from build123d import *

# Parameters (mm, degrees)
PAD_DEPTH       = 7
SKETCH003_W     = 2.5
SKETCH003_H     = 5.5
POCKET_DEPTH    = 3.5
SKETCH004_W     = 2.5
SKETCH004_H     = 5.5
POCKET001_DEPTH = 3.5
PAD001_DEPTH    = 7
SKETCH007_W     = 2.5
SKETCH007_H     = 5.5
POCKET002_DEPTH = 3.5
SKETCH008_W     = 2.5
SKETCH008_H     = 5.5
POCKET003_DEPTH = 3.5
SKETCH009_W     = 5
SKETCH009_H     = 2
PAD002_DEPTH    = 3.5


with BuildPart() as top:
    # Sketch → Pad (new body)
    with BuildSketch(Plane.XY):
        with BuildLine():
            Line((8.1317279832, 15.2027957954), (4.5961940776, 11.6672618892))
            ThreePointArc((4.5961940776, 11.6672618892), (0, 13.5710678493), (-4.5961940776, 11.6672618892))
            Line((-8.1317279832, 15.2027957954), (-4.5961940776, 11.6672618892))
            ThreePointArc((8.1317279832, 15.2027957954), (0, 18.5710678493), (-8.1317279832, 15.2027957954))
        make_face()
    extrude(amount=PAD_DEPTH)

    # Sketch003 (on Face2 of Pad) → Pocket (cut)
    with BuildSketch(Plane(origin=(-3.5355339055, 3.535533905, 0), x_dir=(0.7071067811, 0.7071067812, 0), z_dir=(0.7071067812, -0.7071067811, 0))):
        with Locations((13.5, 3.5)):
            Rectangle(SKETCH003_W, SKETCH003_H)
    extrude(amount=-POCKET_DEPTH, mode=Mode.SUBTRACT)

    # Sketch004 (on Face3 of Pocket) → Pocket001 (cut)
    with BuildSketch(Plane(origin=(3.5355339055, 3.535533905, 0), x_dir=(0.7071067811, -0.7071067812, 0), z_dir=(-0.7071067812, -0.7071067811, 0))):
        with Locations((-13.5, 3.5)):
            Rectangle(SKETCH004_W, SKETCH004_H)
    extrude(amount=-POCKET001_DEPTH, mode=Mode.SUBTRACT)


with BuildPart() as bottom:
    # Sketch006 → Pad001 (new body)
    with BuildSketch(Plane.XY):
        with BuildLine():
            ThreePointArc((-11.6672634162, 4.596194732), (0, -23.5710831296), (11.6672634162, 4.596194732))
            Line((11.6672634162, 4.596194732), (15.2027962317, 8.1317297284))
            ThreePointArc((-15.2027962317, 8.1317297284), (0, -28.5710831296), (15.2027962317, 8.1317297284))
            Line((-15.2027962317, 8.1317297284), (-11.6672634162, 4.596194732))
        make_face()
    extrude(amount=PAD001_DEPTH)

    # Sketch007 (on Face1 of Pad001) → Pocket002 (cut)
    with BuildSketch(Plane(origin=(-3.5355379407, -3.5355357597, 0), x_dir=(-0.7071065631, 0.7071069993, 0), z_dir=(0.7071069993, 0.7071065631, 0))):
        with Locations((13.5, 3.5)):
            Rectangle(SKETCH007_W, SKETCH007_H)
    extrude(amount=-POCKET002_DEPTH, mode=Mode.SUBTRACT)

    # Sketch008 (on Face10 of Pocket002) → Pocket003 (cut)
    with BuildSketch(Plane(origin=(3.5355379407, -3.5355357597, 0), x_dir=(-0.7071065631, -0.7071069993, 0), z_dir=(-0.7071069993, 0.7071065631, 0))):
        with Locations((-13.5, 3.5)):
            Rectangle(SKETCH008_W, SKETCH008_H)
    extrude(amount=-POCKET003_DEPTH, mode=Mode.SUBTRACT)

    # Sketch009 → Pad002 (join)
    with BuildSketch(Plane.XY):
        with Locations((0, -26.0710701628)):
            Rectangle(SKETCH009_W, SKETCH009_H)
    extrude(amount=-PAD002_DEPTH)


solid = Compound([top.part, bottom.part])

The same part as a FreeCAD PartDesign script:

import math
import FreeCAD as App
import Part
import Sketcher

V = App.Vector
Q = App.Units.Quantity


def add_polygon(sketch, points):
    """Adds a closed chain of lines whose ends are joined by coincident constraints."""
    first, n = sketch.GeometryCount, len(points)
    for a, b in zip(points, points[1:] + points[:1]):
        sketch.addGeometry(Part.LineSegment(App.Vector(*a, 0), App.Vector(*b, 0)), False)
    for i in range(n):
        sketch.addConstraint(Sketcher.Constraint("Coincident", first + i, 2, first + (i + 1) % n, 1))

doc = App.newDocument("Part")
body = doc.addObject("PartDesign::Body", "Body")

# Sketch on XY plane
sketch1 = body.newObject("Sketcher::SketchObject", "Sketch")
sketch1.AttachmentSupport = (doc.getObject("XY_Plane"), [""])
sketch1.MapMode = "FlatFace"
sketch1.addGeometry([
    Part.LineSegment(V(4.596194, 11.667262, 0), V(8.131728, 15.202796, 0)),
    Part.ArcOfCircle(Part.Circle(V(0, 7.071068, 0), V(0, 0, 1), 11.5), math.radians(45), math.radians(135)),
    Part.LineSegment(V(-8.131728, 15.202796, 0), V(-4.596194, 11.667262, 0)),
    Part.ArcOfCircle(Part.Circle(V(0, 7.071068, 0), V(0, 0, 1), 6.5), math.radians(44.999999), math.radians(135.000001)),
], False)
sketch1.addConstraint([
    Sketcher.Constraint("Coincident", 0, 2, 1, 1),
    Sketcher.Constraint("Coincident", 1, 2, 2, 1),
    Sketcher.Constraint("Coincident", 2, 2, 3, 2),
    Sketcher.Constraint("Coincident", 3, 1, 0, 1),
    Sketcher.Constraint("Coincident", 3, 3, 1, 3),
    Sketcher.Constraint("Symmetric", 0, 2, 1, 2, -2),
    Sketcher.Constraint("Perpendicular", 0, 2),
    Sketcher.Constraint("Horizontal", 2, 2, 3, 1),
    Sketcher.Constraint("Radius", 1, Q("11.5 mm")),
    Sketcher.Constraint("Radius", 3, Q("6.5 mm")),
    Sketcher.Constraint("DistanceY", -1, 1, 2, 2, Q("11.667262 mm")),
    Sketcher.Constraint("DistanceX", 2, 2, 3, 1, Q("9.192388 mm")),
])
pad1 = body.newObject("PartDesign::Pad", "Pad")
pad1.Profile = sketch1
pad1.Length = 7

# Sketch on an angled plane
sketch2 = body.newObject("Sketcher::SketchObject", "Sketch001")
sketch2.Placement = App.Placement(V(-3.535534, 3.535534, 0), App.Rotation(V(0.707106781, 0.707106781, 0), V(0, 0, 0.999999999), V(0.707106781, -0.707106781, 0), "ZXY"))
add_polygon(sketch2, [(12.25, 6.25), (12.25, 0.75), (14.75, 0.75), (14.75, 6.25)])  # lines 0-3
sketch2.addConstraint([
    Sketcher.Constraint("Vertical", 0),
    Sketcher.Constraint("Horizontal", 1),
    Sketcher.Constraint("Vertical", 2),
    Sketcher.Constraint("Horizontal", 3),
    Sketcher.Constraint("DistanceX", 1, 1, 1, 2, Q("2.5 mm")),
    Sketcher.Constraint("DistanceY", 0, 2, 0, 1, Q("5.5 mm")),
    Sketcher.Constraint("DistanceX", -1, 1, 0, 2, Q("12.25 mm")),
    Sketcher.Constraint("DistanceY", -1, 1, 0, 2, Q("0.75 mm")),
])
pocket1 = body.newObject("PartDesign::Pocket", "Pocket")
pocket1.Profile = sketch2
pocket1.Length = 3.5

# Sketch on an angled plane
sketch3 = body.newObject("Sketcher::SketchObject", "Sketch002")
sketch3.Placement = App.Placement(V(3.535534, 3.535534, 0), App.Rotation(V(0.707106781, -0.707106781, 0), V(0, 0, 0.999999999), V(-0.707106781, -0.707106781, 0), "ZXY"))
add_polygon(sketch3, [(-14.75, 6.25), (-14.75, 0.75), (-12.25, 0.75), (-12.25, 6.25)])  # lines 0-3
sketch3.addConstraint([
    Sketcher.Constraint("Vertical", 0),
    Sketcher.Constraint("Horizontal", 1),
    Sketcher.Constraint("Vertical", 2),
    Sketcher.Constraint("Horizontal", 3),
    Sketcher.Constraint("DistanceX", 1, 1, 1, 2, Q("2.5 mm")),
    Sketcher.Constraint("DistanceY", 0, 2, 0, 1, Q("5.5 mm")),
    Sketcher.Constraint("DistanceX", 0, 2, -1, 1, Q("14.75 mm")),
    Sketcher.Constraint("DistanceY", -1, 1, 0, 2, Q("0.75 mm")),
])
pocket2 = body.newObject("PartDesign::Pocket", "Pocket001")
pocket2.Profile = sketch3
pocket2.Length = 3.5
body2 = doc.addObject("PartDesign::Body", "Body001")

# Sketch on XY plane
sketch4 = body2.newObject("Sketcher::SketchObject", "Sketch003")
sketch4.AttachmentSupport = (doc.getObject("XY_Plane001"), [""])
sketch4.MapMode = "FlatFace"
sketch4.addGeometry([
    Part.ArcOfCircle(Part.Circle(V(0, -7.071076, 0), V(0, 0, 1), 16.500007), math.radians(134.999982), math.radians(405.000018)),
    Part.LineSegment(V(-11.667263, 4.596195, 0), V(-15.202796, 8.13173, 0)),
    Part.ArcOfCircle(Part.Circle(V(0, -7.071076, 0), V(0, 0, 1), 21.500007), math.radians(134.999982), math.radians(405.000018)),
    Part.LineSegment(V(15.202796, 8.13173, 0), V(11.667263, 4.596195, 0)),
], False)
sketch4.addConstraint([
    Sketcher.Constraint("Coincident", 0, 1, 1, 1),
    Sketcher.Constraint("Coincident", 1, 2, 2, 1),
    Sketcher.Constraint("Coincident", 2, 2, 3, 1),
    Sketcher.Constraint("Coincident", 3, 2, 0, 2),
    Sketcher.Constraint("Coincident", 2, 3, 0, 3),
    Sketcher.Constraint("Symmetric", 1, 2, 2, 2, -2),
    Sketcher.Constraint("Perpendicular", 1, 3),
    Sketcher.Constraint("Horizontal", 0, 1, 3, 2),
    Sketcher.Constraint("Distance", 1, Q("5 mm")),
    Sketcher.Constraint("Radius", 0, Q("16.500007 mm")),
    Sketcher.Constraint("DistanceY", -1, 1, 1, 2, Q("8.13173 mm")),
    Sketcher.Constraint("DistanceY", 0, 3, 0, 1, Q("11.667271 mm")),
])
pad2 = body2.newObject("PartDesign::Pad", "Pad001")
pad2.Profile = sketch4
pad2.Length = 7

# Sketch on an angled plane
sketch5 = body2.newObject("Sketcher::SketchObject", "Sketch004")
sketch5.Placement = App.Placement(V(-3.535538, -3.535536, 0), App.Rotation(V(-0.707106563, 0.707106999, 0), V(0, 0, 0.999999999), V(0.707106999, 0.707106563, 0), "ZXY"))
add_polygon(sketch5, [(12.25, 6.25), (12.25, 0.75), (14.75, 0.75), (14.75, 6.25)])  # lines 0-3
sketch5.addConstraint([
    Sketcher.Constraint("Vertical", 0),
    Sketcher.Constraint("Horizontal", 1),
    Sketcher.Constraint("Vertical", 2),
    Sketcher.Constraint("Horizontal", 3),
    Sketcher.Constraint("DistanceX", 1, 1, 1, 2, Q("2.5 mm")),
    Sketcher.Constraint("DistanceY", 0, 2, 0, 1, Q("5.5 mm")),
    Sketcher.Constraint("DistanceX", -1, 1, 0, 2, Q("12.25 mm")),
    Sketcher.Constraint("DistanceY", -1, 1, 0, 2, Q("0.75 mm")),
])
pocket3 = body2.newObject("PartDesign::Pocket", "Pocket002")
pocket3.Profile = sketch5
pocket3.Length = 3.5

# Sketch on an angled plane
sketch6 = body2.newObject("Sketcher::SketchObject", "Sketch005")
sketch6.Placement = App.Placement(V(3.535538, -3.535536, 0), App.Rotation(V(-0.707106563, -0.707106999, 0), V(0, 0, 0.999999999), V(-0.707106999, 0.707106563, 0), "ZXY"))
add_polygon(sketch6, [(-14.75, 6.25), (-14.75, 0.75), (-12.25, 0.75), (-12.25, 6.25)])  # lines 0-3
sketch6.addConstraint([
    Sketcher.Constraint("Vertical", 0),
    Sketcher.Constraint("Horizontal", 1),
    Sketcher.Constraint("Vertical", 2),
    Sketcher.Constraint("Horizontal", 3),
    Sketcher.Constraint("DistanceX", 1, 1, 1, 2, Q("2.5 mm")),
    Sketcher.Constraint("DistanceY", 0, 2, 0, 1, Q("5.5 mm")),
    Sketcher.Constraint("DistanceX", 0, 2, -1, 1, Q("14.75 mm")),
    Sketcher.Constraint("DistanceY", -1, 1, 0, 2, Q("0.75 mm")),
])
pocket4 = body2.newObject("PartDesign::Pocket", "Pocket003")
pocket4.Profile = sketch6
pocket4.Length = 3.5

# Sketch on XY plane
sketch7 = body2.newObject("Sketcher::SketchObject", "Sketch006")
sketch7.AttachmentSupport = (doc.getObject("XY_Plane001"), [""])
sketch7.MapMode = "FlatFace"
add_polygon(sketch7, [(-2.5, -25.07107), (-2.5, -27.07107), (2.5, -27.07107), (2.5, -25.07107)])  # lines 0-3
sketch7.addConstraint([
    Sketcher.Constraint("Vertical", 0),
    Sketcher.Constraint("Horizontal", 1),
    Sketcher.Constraint("Vertical", 2),
    Sketcher.Constraint("Horizontal", 3),
    Sketcher.Constraint("DistanceX", 1, 1, 1, 2, Q("5 mm")),
    Sketcher.Constraint("DistanceY", 0, 2, 0, 1, Q("2 mm")),
    Sketcher.Constraint("DistanceX", 0, 2, -1, 1, Q("2.5 mm")),
    Sketcher.Constraint("DistanceY", 0, 2, -1, 1, Q("27.07107 mm")),
])
pad3 = body2.newObject("PartDesign::Pad", "Pad002")
pad3.Profile = sketch7
pad3.Length = 3.5
pad3.Reversed = True

doc.recompute()
